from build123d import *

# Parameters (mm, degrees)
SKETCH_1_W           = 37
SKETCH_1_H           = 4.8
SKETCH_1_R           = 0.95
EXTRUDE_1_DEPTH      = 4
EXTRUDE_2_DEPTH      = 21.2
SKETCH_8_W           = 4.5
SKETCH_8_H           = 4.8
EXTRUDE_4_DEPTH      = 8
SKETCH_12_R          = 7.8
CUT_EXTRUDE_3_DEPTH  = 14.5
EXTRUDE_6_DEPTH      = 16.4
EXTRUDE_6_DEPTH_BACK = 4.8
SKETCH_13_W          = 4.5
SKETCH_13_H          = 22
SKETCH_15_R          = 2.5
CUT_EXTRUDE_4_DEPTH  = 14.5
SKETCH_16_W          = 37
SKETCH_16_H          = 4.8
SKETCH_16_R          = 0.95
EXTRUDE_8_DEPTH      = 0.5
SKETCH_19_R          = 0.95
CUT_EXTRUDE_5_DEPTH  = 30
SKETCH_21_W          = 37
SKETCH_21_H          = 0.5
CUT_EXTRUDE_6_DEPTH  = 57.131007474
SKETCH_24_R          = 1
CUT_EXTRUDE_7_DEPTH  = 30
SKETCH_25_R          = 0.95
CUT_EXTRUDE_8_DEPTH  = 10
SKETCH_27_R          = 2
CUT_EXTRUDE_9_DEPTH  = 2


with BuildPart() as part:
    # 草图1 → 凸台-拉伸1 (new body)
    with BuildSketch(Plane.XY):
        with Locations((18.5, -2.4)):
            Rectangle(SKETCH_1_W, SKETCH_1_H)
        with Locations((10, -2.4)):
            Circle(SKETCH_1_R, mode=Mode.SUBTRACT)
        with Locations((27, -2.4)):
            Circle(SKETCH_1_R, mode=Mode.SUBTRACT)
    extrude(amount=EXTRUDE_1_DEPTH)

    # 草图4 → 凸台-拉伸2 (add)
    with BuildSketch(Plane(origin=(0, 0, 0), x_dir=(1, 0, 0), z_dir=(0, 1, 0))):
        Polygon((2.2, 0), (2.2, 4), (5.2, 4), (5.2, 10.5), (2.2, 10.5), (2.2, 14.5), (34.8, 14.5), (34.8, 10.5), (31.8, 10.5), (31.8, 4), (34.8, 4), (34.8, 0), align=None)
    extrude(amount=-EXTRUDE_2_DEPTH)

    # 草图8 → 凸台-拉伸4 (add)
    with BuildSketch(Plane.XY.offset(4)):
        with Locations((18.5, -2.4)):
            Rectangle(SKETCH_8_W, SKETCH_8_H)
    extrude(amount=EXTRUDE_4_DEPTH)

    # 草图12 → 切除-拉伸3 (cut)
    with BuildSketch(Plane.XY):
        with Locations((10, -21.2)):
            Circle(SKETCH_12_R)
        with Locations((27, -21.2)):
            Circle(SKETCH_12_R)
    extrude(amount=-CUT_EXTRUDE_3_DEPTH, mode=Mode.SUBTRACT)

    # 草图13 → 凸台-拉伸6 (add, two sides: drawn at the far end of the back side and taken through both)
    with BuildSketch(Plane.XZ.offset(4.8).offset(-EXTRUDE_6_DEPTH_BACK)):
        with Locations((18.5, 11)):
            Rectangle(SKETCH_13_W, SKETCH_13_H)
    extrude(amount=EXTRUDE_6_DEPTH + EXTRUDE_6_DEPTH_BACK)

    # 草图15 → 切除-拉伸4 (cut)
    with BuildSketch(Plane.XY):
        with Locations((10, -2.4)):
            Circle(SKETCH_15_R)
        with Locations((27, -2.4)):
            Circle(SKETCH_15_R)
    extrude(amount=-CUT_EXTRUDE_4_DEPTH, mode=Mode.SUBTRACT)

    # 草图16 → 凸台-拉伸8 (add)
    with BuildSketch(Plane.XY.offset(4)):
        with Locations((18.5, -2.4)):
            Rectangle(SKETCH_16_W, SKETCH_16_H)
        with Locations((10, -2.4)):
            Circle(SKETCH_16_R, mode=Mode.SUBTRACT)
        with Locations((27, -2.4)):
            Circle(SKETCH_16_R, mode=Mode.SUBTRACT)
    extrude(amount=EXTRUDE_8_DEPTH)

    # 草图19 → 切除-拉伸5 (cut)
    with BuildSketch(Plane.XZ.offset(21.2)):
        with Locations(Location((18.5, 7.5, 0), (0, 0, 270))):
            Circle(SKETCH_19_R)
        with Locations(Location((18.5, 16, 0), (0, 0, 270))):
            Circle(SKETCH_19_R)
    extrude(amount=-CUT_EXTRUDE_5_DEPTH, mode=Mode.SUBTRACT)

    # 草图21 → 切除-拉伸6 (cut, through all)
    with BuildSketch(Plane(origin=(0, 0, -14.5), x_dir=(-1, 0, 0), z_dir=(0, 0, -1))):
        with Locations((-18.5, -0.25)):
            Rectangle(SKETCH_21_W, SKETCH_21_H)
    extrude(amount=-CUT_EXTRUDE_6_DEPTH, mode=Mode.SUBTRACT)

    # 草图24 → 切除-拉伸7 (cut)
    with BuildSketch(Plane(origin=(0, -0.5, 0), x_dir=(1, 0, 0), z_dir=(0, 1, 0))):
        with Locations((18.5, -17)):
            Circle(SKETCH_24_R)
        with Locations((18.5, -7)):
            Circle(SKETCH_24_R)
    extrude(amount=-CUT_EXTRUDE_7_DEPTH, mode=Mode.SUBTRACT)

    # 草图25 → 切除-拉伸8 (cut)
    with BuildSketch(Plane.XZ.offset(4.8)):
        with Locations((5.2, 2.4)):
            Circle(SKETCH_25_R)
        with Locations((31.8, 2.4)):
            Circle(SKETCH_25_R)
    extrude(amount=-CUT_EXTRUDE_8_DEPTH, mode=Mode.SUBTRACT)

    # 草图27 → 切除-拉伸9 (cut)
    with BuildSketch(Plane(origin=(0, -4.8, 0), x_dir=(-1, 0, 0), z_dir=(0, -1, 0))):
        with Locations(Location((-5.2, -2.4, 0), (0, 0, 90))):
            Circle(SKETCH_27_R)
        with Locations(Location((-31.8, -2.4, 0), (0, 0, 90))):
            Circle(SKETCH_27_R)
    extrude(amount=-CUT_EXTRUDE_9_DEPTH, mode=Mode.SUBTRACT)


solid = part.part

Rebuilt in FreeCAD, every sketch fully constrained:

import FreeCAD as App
import Part
import Sketcher


def add_polygon(sketch, points):
    """Adds a closed chain of lines whose ends are joined by coincident constraints."""
    first, n = sketch.GeometryCount, len(points)
    for a, b in zip(points, points[1:] + points[:1]):
        sketch.addGeometry(Part.LineSegment(App.Vector(*a, 0), App.Vector(*b, 0)), False)
    for i in range(n):
        sketch.addConstraint(Sketcher.Constraint("Coincident", first + i, 2, first + (i + 1) % n, 1))

doc = App.newDocument("Part")
body = doc.addObject("PartDesign::Body", "Body")

sketch1 = body.newObject("Sketcher::SketchObject", "Sketch")
sketch1.AttachmentSupport = (doc.getObject("XY_Plane"), [""])
sketch1.MapMode = "FlatFace"
add_polygon(sketch1, [(0, 0), (0, -4.8), (37, -4.8), (37, 0)])
sketch1.addGeometry(Part.Circle(App.Vector(10, -2.4, 0), App.Vector(0, 0, 1), 0.9), False)
sketch1.addGeometry(Part.Circle(App.Vector(27, -2.4, 0), App.Vector(0, 0, 1), 0.9), False)
sketch1.addConstraint([
    Sketcher.Constraint("Vertical", 0),
    Sketcher.Constraint("Horizontal", 1),
    Sketcher.Constraint("Vertical", 2),
    Sketcher.Constraint("Horizontal", 3),
    Sketcher.Constraint("Coincident", 3, 2, -1, 1),
    Sketcher.Constraint("Equal", 4, 5),
    Sketcher.Constraint("Horizontal", 4, 3, 5, 3),
    Sketcher.Constraint("Diameter", 4, 1.9),
    Sketcher.Constraint("DistanceX", 1, 1, 1, 2, 37.0),
    Sketcher.Constraint("DistanceY", 0, 2, 0, 1, 4.8),
    Sketcher.Constraint("DistanceX", -1, 1, 4, 3, 10.0),
    Sketcher.Constraint("DistanceX", -1, 1, 5, 3, 27.0),
    Sketcher.Constraint("DistanceY", 4, 3, -1, 1, 2.4),
])
pad1 = body.newObject("PartDesign::Pad", "Pad")
pad1.Profile = sketch1
pad1.Length = 4

sketch2 = body.newObject("Sketcher::SketchObject", "Sketch001")
sketch2.AttachmentSupport = (doc.getObject("XZ_Plane"), [""])
sketch2.MapMode = "FlatFace"
add_polygon(sketch2, [(2.2, -4), (2.2, 0), (34.8, 0), (34.8, -4), (31.8, -4), (31.8, -10.5), (34.8, -10.5), (34.8, -14.5), (2.2, -14.5), (2.2, -10.5), (5.2, -10.5), (5.2, -4)])
sketch2.addConstraint([
    Sketcher.Constraint("Vertical", 0),
    Sketcher.Constraint("Horizontal", 1),
    Sketcher.Constraint("Vertical", 2),
    Sketcher.Constraint("Horizontal", 3),
    Sketcher.Constraint("Vertical", 4),
    Sketcher.Constraint("Horizontal", 5),
    Sketcher.Constraint("Vertical", 6),
    Sketcher.Constraint("Horizontal", 7),
    Sketcher.Constraint("Vertical", 8),
    Sketcher.Constraint("Horizontal", 9),
    Sketcher.Constraint("Vertical", 10),
    Sketcher.Constraint("Horizontal", 11),
    Sketcher.Constraint("PointOnObject", 0, 2, -1),
    Sketcher.Constraint("Horizontal", 5, 2, 8, 2),
    Sketcher.Constraint("Horizontal", 3, 2, 10, 2),
    Sketcher.Constraint("Vertical", 2, 2, 5, 2),
    Sketcher.Constraint("Vertical", 0, 2, 7, 2),
    Sketcher.Constraint("Equal", 5, 9),
    Sketcher.Constraint("Equal", 2, 6),
    Sketcher.Constraint("DistanceX", 3, 2, 3, 1, 3.0),
    Sketcher.Constraint("DistanceY", 0, 1, 0, 2, 4.0),
    Sketcher.Constraint("DistanceX", 1, 1, 1, 2, 32.6),
    Sketcher.Constraint("DistanceY", 4, 2, 4, 1, 6.5),
    Sketcher.Constraint("DistanceX", -1, 1, 0, 2, 2.2),
])
pad2 = body.newObject("PartDesign::Pad", "Pad001")
pad2.Profile = sketch2
pad2.Length = 21.2

sketch3 = body.newObject("Sketcher::SketchObject", "Sketch002")
sketch3.AttachmentSupport = (doc.getObject("XY_Plane"), [""])
sketch3.MapMode = "FlatFace"
sketch3.AttachmentOffset = App.Placement(App.Vector(0, 0, 4), App.Rotation())
add_polygon(sketch3, [(16.2, 0), (16.2, -4.8), (20.8, -4.8), (20.8, 0)])
sketch3.addConstraint([
    Sketcher.Constraint("Vertical", 0),
    Sketcher.Constraint("Horizontal", 1),
    Sketcher.Constraint("Vertical", 2),
    Sketcher.Constraint("Horizontal", 3),
    Sketcher.Constraint("PointOnObject", 2, 2, -1),
    Sketcher.Constraint("DistanceX", 1, 1, 1, 2, 4.5),
    Sketcher.Constraint("DistanceY", 0, 2, 0, 1, 4.8),
    Sketcher.Constraint("DistanceX", -1, 1, 0, 2, 16.25),
])
pad3 = body.newObject("PartDesign::Pad", "Pad002")
pad3.Profile = sketch3
pad3.Length = 8

sketch4 = body.newObject("Sketcher::SketchObject", "Sketch003")
sketch4.AttachmentSupport = (doc.getObject("XY_Plane"), [""])
sketch4.MapMode = "FlatFace"
sketch4.addGeometry([
    Part.Circle(App.Vector(10, -21, 0), App.Vector(0, 0, 1), 8),
    Part.Circle(App.Vector(27, -21, 0), App.Vector(0, 0, 1), 8),
], False)
sketch4.addConstraint([
    Sketcher.Constraint("Equal", 0, 1),
    Sketcher.Constraint("Horizontal", 0, 3, 1, 3),
    Sketcher.Constraint("Diameter", 0, 15.6),
    Sketcher.Constraint("DistanceX", -1, 1, 0, 3, 10.0),
    Sketcher.Constraint("DistanceX", -1, 1, 1, 3, 27.0),
    Sketcher.Constraint("DistanceY", 0, 3, -1, 1, 21.2),
])
pocket1 = body.newObject("PartDesign::Pocket", "Pocket")
pocket1.Profile = sketch4
pocket1.Length = 14.5

sketch5 = body.newObject("Sketcher::SketchObject", "Sketch004")
sketch5.AttachmentSupport = (doc.getObject("XZ_Plane"), [""])
sketch5.MapMode = "FlatFace"
sketch5.AttachmentOffset = App.Placement(App.Vector(0, 0, 4.8), App.Rotation())
add_polygon(sketch5, [(16.2, 22), (16.2, 0), (20.8, 0), (20.8, 22)])
sketch5.addConstraint([
    Sketcher.Constraint("Vertical", 0),
    Sketcher.Constraint("Horizontal", 1),
    Sketcher.Constraint("Vertical", 2),
    Sketcher.Constraint("Horizontal", 3),
    Sketcher.Constraint("PointOnObject", 0, 2, -1),
    Sketcher.Constraint("DistanceY", 0, 2, 0, 1, 22.0),
    Sketcher.Constraint("DistanceX", 1, 1, 1, 2, 4.5),
    Sketcher.Constraint("DistanceX", -1, 1, 0, 2, 16.25),
])
pad4 = body.newObject("PartDesign::Pad", "Pad003")
pad4.Profile = sketch5
pad4.Type = "TwoLengths"
pad4.Length = 16.4
pad4.Length2 = 4.8

sketch6 = body.newObject("Sketcher::SketchObject", "Sketch005")
sketch6.AttachmentSupport = (doc.getObject("XY_Plane"), [""])
sketch6.MapMode = "FlatFace"
sketch6.addGeometry([
    Part.Circle(App.Vector(10, -2.4, 0), App.Vector(0, 0, 1), 2.5),
    Part.Circle(App.Vector(27, -2.4, 0), App.Vector(0, 0, 1), 2.5),
], False)
sketch6.addConstraint([
    Sketcher.Constraint("Equal", 0, 1),
    Sketcher.Constraint("Horizontal", 0, 3, 1, 3),
    Sketcher.Constraint("Diameter", 0, 5.0),
    Sketcher.Constraint("DistanceX", -1, 1, 0, 3, 10.0),
    Sketcher.Constraint("DistanceX", -1, 1, 1, 3, 27.0),
    Sketcher.Constraint("DistanceY", 0, 3, -1, 1, 2.4),
])
pocket2 = body.newObject("PartDesign::Pocket", "Pocket001")
pocket2.Profile = sketch6
pocket2.Length = 14.5

sketch7 = body.newObject("Sketcher::SketchObject", "Sketch006")
sketch7.AttachmentSupport = (doc.getObject("XY_Plane"), [""])
sketch7.MapMode = "FlatFace"
sketch7.AttachmentOffset = App.Placement(App.Vector(0, 0, 4), App.Rotation())
add_polygon(sketch7, [(0, 0), (0, -4.8), (37, -4.8), (37, 0)])
sketch7.addGeometry(Part.Circle(App.Vector(10, -2.4, 0), App.Vector(0, 0, 1), 0.9), False)
sketch7.addGeometry(Part.Circle(App.Vector(27, -2.4, 0), App.Vector(0, 0, 1), 0.9), False)
sketch7.addConstraint([
    Sketcher.Constraint("Vertical", 0),
    Sketcher.Constraint("Horizontal", 1),
    Sketcher.Constraint("Vertical", 2),
    Sketcher.Constraint("Horizontal", 3),
    Sketcher.Constraint("Coincident", 3, 2, -1, 1),
    Sketcher.Constraint("Equal", 4, 5),
    Sketcher.Constraint("Horizontal", 4, 3, 5, 3),
    Sketcher.Constraint("Diameter", 4, 1.9),
    Sketcher.Constraint("DistanceX", 1, 1, 1, 2, 37.0),
    Sketcher.Constraint("DistanceY", 0, 2, 0, 1, 4.8),
    Sketcher.Constraint("DistanceX", -1, 1, 4, 3, 10.0),
    Sketcher.Constraint("DistanceX", -1, 1, 5, 3, 27.0),
    Sketcher.Constraint("DistanceY", 4, 3, -1, 1, 2.4),
])
pad5 = body.newObject("PartDesign::Pad", "Pad004")
pad5.Profile = sketch7
pad5.Length = 0.5

sketch8 = body.newObject("Sketcher::SketchObject", "Sketch007")
sketch8.AttachmentSupport = (doc.getObject("XZ_Plane"), [""])
sketch8.MapMode = "FlatFace"
sketch8.AttachmentOffset = App.Placement(App.Vector(0, 0, 21.2), App.Rotation())
sketch8.addGeometry([
    Part.Circle(App.Vector(18.5, 7.5, 0), App.Vector(0, 0, 1), 0.9),
    Part.Circle(App.Vector(18.5, 16, 0), App.Vector(0, 0, 1), 0.9),
], False)
sketch8.addConstraint([
    Sketcher.Constraint("Equal", 0, 1),
    Sketcher.Constraint("Vertical", 0, 3, 1, 3),
    Sketcher.Constraint("Diameter", 0, 1.9),
    Sketcher.Constraint("DistanceY", -1, 1, 1, 3, 16.0),
    Sketcher.Constraint("DistanceX", -1, 1, 0, 3, 18.5),
    Sketcher.Constraint("DistanceY", -1, 1, 0, 3, 7.5),
])
pocket3 = body.newObject("PartDesign::Pocket", "Pocket002")
pocket3.Profile = sketch8
pocket3.Length = 30

sketch9 = body.newObject("Sketcher::SketchObject", "Sketch008")
sketch9.AttachmentSupport = (doc.getObject("XY_Plane"), [""])
sketch9.MapMode = "FlatFace"
sketch9.AttachmentOffset = App.Placement(App.Vector(0, 0, -14.5), App.Rotation())
add_polygon(sketch9, [(37, 0), (37, -0.5), (0, -0.5), (0, 0)])
sketch9.addConstraint([
    Sketcher.Constraint("Vertical", 0),
    Sketcher.Constraint("Horizontal", 1),
    Sketcher.Constraint("Vertical", 2),
    Sketcher.Constraint("Horizontal", 3),
    Sketcher.Constraint("Coincident", 2, 2, -1, 1),
    Sketcher.Constraint("DistanceX", 1, 2, 1, 1, 37.0),
    Sketcher.Constraint("DistanceY", 0, 2, 0, 1, 0.5),
])
pocket4 = body.newObject("PartDesign::Pocket", "Pocket003")
pocket4.Profile = sketch9
pocket4.Type = "ThroughAll"
pocket4.Reversed = True

sketch10 = body.newObject("Sketcher::SketchObject", "Sketch009")
sketch10.AttachmentSupport = (doc.getObject("XZ_Plane"), [""])
sketch10.MapMode = "FlatFace"
sketch10.AttachmentOffset = App.Placement(App.Vector(0, 0, 0.5), App.Rotation())
sketch10.addGeometry([
    Part.Circle(App.Vector(18.5, 17, 0), App.Vector(0, 0, 1), 1),
    Part.Circle(App.Vector(18.5, 7, 0), App.Vector(0, 0, 1), 1),
], False)
sketch10.addConstraint([
    Sketcher.Constraint("Equal", 0, 1),
    Sketcher.Constraint("Vertical", 0, 3, 1, 3),
    Sketcher.Constraint("Diameter", 0, 2.0),
    Sketcher.Constraint("DistanceY", -1, 1, 0, 3, 17.0),
    Sketcher.Constraint("DistanceY", -1, 1, 1, 3, 7.0),
    Sketcher.Constraint("DistanceX", -1, 1, 0, 3, 18.5),
])
pocket5 = body.newObject("PartDesign::Pocket", "Pocket004")
pocket5.Profile = sketch10
pocket5.Length = 30
pocket5.Reversed = True

sketch11 = body.newObject("Sketcher::SketchObject", "Sketch010")
sketch11.AttachmentSupport = (doc.getObject("XZ_Plane"), [""])
sketch11.MapMode = "FlatFace"
sketch11.AttachmentOffset = App.Placement(App.Vector(0, 0, 4.8), App.Rotation())
sketch11.addGeometry([
    Part.Circle(App.Vector(5.2, 2.4, 0), App.Vector(0, 0, 1), 0.9),
    Part.Circle(App.Vector(31.8, 2.4, 0), App.Vector(0, 0, 1), 0.9),
], False)
sketch11.addConstraint([
    Sketcher.Constraint("Equal", 0, 1),
    Sketcher.Constraint("Horizontal", 0, 3, 1, 3),
    Sketcher.Constraint("Diameter", 0, 1.9),
    Sketcher.Constraint("DistanceX", -1, 1, 0, 3, 5.2),
    Sketcher.Constraint("DistanceY", -1, 1, 0, 3, 2.4),
    Sketcher.Constraint("DistanceX", -1, 1, 1, 3, 31.8),
])
pocket6 = body.newObject("PartDesign::Pocket", "Pocket005")
pocket6.Profile = sketch11
pocket6.Length = 10

sketch12 = body.newObject("Sketcher::SketchObject", "Sketch011")
sketch12.AttachmentSupport = (doc.getObject("XZ_Plane"), [""])
sketch12.MapMode = "FlatFace"
sketch12.AttachmentOffset = App.Placement(App.Vector(0, 0, 4.8), App.Rotation())
sketch12.addGeometry([
    Part.Circle(App.Vector(5.2, 2.4, 0), App.Vector(0, 0, 1), 2),
    Part.Circle(App.Vector(31.8, 2.4, 0), App.Vector(0, 0, 1), 2),
], False)
sketch12.addConstraint([
    Sketcher.Constraint("Equal", 0, 1),
    Sketcher.Constraint("Horizontal", 0, 3, 1, 3),
    Sketcher.Constraint("Diameter", 0, 4.0),
    Sketcher.Constraint("DistanceX", -1, 1, 0, 3, 5.2),
    Sketcher.Constraint("DistanceY", -1, 1, 0, 3, 2.4),
    Sketcher.Constraint("DistanceX", -1, 1, 1, 3, 31.8),
])
pocket7 = body.newObject("PartDesign::Pocket", "Pocket006")
pocket7.Profile = sketch12
pocket7.Length = 2

doc.recompute()
